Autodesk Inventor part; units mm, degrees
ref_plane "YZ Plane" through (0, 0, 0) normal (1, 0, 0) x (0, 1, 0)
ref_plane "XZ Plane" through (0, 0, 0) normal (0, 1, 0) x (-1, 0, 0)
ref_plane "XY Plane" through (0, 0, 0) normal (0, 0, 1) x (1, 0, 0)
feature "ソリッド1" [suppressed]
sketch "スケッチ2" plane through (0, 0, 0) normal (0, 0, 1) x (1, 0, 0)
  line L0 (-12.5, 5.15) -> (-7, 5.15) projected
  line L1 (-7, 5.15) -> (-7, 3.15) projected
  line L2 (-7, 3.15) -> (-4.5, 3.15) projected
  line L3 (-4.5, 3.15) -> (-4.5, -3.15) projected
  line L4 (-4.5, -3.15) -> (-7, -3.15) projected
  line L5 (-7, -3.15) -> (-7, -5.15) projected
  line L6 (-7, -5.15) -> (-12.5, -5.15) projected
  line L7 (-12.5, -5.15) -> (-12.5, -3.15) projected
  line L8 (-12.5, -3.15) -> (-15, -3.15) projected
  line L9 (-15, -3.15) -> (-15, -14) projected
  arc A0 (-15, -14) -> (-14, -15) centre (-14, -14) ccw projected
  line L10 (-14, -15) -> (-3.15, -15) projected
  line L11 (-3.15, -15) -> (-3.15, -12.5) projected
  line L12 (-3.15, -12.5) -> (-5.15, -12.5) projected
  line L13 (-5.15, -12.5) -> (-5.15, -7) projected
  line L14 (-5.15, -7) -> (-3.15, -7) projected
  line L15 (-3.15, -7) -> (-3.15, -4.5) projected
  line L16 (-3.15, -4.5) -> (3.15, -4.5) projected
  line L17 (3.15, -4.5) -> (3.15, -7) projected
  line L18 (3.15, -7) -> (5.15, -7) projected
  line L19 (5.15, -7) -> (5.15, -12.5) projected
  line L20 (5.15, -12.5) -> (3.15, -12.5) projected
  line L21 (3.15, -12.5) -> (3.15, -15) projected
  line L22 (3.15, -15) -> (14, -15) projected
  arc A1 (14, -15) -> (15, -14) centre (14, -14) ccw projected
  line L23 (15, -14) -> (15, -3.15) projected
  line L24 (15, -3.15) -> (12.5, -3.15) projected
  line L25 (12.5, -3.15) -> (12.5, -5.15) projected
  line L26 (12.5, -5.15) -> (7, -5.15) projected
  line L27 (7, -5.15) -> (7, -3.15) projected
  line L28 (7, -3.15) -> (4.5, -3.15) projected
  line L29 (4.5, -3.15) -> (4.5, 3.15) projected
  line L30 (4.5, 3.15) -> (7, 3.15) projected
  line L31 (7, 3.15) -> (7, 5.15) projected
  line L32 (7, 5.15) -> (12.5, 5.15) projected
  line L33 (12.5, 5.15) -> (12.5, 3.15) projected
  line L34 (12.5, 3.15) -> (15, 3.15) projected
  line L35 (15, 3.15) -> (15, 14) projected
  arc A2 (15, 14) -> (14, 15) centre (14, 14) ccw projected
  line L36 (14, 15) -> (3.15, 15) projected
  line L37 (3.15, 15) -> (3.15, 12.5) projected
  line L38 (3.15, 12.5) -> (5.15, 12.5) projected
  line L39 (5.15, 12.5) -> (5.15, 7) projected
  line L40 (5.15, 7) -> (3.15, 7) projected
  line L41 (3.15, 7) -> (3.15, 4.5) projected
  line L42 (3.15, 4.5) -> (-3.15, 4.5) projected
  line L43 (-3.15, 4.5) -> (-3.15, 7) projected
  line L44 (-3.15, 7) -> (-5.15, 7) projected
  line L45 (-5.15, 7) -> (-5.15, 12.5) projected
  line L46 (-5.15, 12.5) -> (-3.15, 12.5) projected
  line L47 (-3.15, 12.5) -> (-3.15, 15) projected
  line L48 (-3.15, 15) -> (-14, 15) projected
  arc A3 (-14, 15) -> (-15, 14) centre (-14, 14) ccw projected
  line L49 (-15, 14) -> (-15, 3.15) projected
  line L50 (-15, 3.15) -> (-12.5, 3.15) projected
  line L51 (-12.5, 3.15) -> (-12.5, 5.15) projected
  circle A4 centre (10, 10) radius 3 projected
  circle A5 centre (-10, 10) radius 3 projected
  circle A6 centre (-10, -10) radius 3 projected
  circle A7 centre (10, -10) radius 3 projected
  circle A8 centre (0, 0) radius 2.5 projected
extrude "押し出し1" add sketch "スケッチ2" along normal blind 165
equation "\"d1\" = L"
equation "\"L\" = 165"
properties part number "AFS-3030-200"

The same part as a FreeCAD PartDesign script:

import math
import FreeCAD as App
import Part
import Sketcher
from FreeCAD import Vector
Q = App.Units.Quantity

doc = App.newDocument("Part")
body = doc.addObject("PartDesign::Body", "Body")

sketch1 = body.newObject("Sketcher::SketchObject", "Sketch")
sketch1.AttachmentSupport = (doc.getObject("XY_Plane"), [""])
sketch1.MapMode = "FlatFace"
sketch1.addGeometry([
    Part.LineSegment(Vector(-12.5, 3.1, 0), Vector(-12.5, 5.2, 0)),
    Part.LineSegment(Vector(-12.5, 5.2, 0), Vector(-7, 5.2, 0)),
    Part.LineSegment(Vector(-7, 5.2, 0), Vector(-7, 3.1, 0)),
    Part.LineSegment(Vector(-7, 3.1, 0), Vector(-4.5, 3.1, 0)),
    Part.LineSegment(Vector(-4.5, 3.1, 0), Vector(-4.5, -3.1, 0)),
    Part.LineSegment(Vector(-4.5, -3.1, 0), Vector(-7, -3.1, 0)),
    Part.LineSegment(Vector(-7, -3.1, 0), Vector(-7, -5.2, 0)),
    Part.LineSegment(Vector(-7, -5.2, 0), Vector(-12.5, -5.2, 0)),
    Part.LineSegment(Vector(-12.5, -5.2, 0), Vector(-12.5, -3.1, 0)),
    Part.LineSegment(Vector(-12.5, -3.1, 0), Vector(-15, -3.1, 0)),
    Part.LineSegment(Vector(-15, -3.1, 0), Vector(-15, -14, 0)),
    Part.ArcOfCircle(Part.Circle(Vector(-14, -14, 0), Vector(0, 0, 1), 1), math.radians(180), math.radians(270)),
    Part.LineSegment(Vector(-14, -15, 0), Vector(-3.1, -15, 0)),
    Part.LineSegment(Vector(-3.1, -15, 0), Vector(-3.1, -12.5, 0)),
    Part.LineSegment(Vector(-3.1, -12.5, 0), Vector(-5.2, -12.5, 0)),
    Part.LineSegment(Vector(-5.2, -12.5, 0), Vector(-5.2, -7, 0)),
    Part.LineSegment(Vector(-5.2, -7, 0), Vector(-3.1, -7, 0)),
    Part.LineSegment(Vector(-3.1, -7, 0), Vector(-3.1, -4.5, 0)),
    Part.LineSegment(Vector(-3.1, -4.5, 0), Vector(3.1, -4.5, 0)),
    Part.LineSegment(Vector(3.1, -4.5, 0), Vector(3.1, -7, 0)),
    Part.LineSegment(Vector(3.1, -7, 0), Vector(5.2, -7, 0)),
    Part.LineSegment(Vector(5.2, -7, 0), Vector(5.2, -12.5, 0)),
    Part.LineSegment(Vector(5.2, -12.5, 0), Vector(3.1, -12.5, 0)),
    Part.LineSegment(Vector(3.1, -12.5, 0), Vector(3.1, -15, 0)),
    Part.LineSegment(Vector(3.1, -15, 0), Vector(14, -15, 0)),
    Part.ArcOfCircle(Part.Circle(Vector(14, -14, 0), Vector(0, 0, 1), 1), math.radians(-90), math.radians(0)),
    Part.LineSegment(Vector(15, -14, 0), Vector(15, -3.1, 0)),
    Part.LineSegment(Vector(15, -3.1, 0), Vector(12.5, -3.1, 0)),
    Part.LineSegment(Vector(12.5, -3.1, 0), Vector(12.5, -5.2, 0)),
    Part.LineSegment(Vector(12.5, -5.2, 0), Vector(7, -5.2, 0)),
    Part.LineSegment(Vector(7, -5.2, 0), Vector(7, -3.1, 0)),
    Part.LineSegment(Vector(7, -3.1, 0), Vector(4.5, -3.1, 0)),
    Part.LineSegment(Vector(4.5, -3.1, 0), Vector(4.5, 3.1, 0)),
    Part.LineSegment(Vector(4.5, 3.1, 0), Vector(7, 3.1, 0)),
    Part.LineSegment(Vector(7, 3.1, 0), Vector(7, 5.2, 0)),
    Part.LineSegment(Vector(7, 5.2, 0), Vector(12.5, 5.2, 0)),
    Part.LineSegment(Vector(12.5, 5.2, 0), Vector(12.5, 3.1, 0)),
    Part.LineSegment(Vector(12.5, 3.1, 0), Vector(15, 3.1, 0)),
    Part.LineSegment(Vector(15, 3.1, 0), Vector(15, 14, 0)),
    Part.ArcOfCircle(Part.Circle(Vector(14, 14, 0), Vector(0, 0, 1), 1), math.radians(0), math.radians(90)),
    Part.LineSegment(Vector(14, 15, 0), Vector(3.1, 15, 0)),
    Part.LineSegment(Vector(3.1, 15, 0), Vector(3.1, 12.5, 0)),
    Part.LineSegment(Vector(3.1, 12.5, 0), Vector(5.2, 12.5, 0)),
    Part.LineSegment(Vector(5.2, 12.5, 0), Vector(5.2, 7, 0)),
    Part.LineSegment(Vector(5.2, 7, 0), Vector(3.1, 7, 0)),
    Part.LineSegment(Vector(3.1, 7, 0), Vector(3.1, 4.5, 0)),
    Part.LineSegment(Vector(3.1, 4.5, 0), Vector(-3.1, 4.5, 0)),
    Part.LineSegment(Vector(-3.1, 4.5, 0), Vector(-3.1, 7, 0)),
    Part.LineSegment(Vector(-3.1, 7, 0), Vector(-5.2, 7, 0)),
    Part.LineSegment(Vector(-5.2, 7, 0), Vector(-5.2, 12.5, 0)),
    Part.LineSegment(Vector(-5.2, 12.5, 0), Vector(-3.1, 12.5, 0)),
    Part.LineSegment(Vector(-3.1, 12.5, 0), Vector(-3.1, 15, 0)),
    Part.LineSegment(Vector(-3.1, 15, 0), Vector(-14, 15, 0)),
    Part.ArcOfCircle(Part.Circle(Vector(-14, 14, 0), Vector(0, 0, 1), 1), math.radians(90), math.radians(180)),
    Part.LineSegment(Vector(-15, 14, 0), Vector(-15, 3.1, 0)),
    Part.LineSegment(Vector(-15, 3.1, 0), Vector(-12.5, 3.1, 0)),
    Part.Circle(Vector(-10, -10, 0), Vector(0, 0, 1), 3),
    Part.Circle(Vector(10, -10, 0), Vector(0, 0, 1), 3),
    Part.Circle(Vector(-10, 10, 0), Vector(0, 0, 1), 3),
    Part.Circle(Vector(0, 0, 0), Vector(0, 0, 1), 2.5),
    Part.Circle(Vector(10, 10, 0), Vector(0, 0, 1), 3),
], False)
sketch1.addConstraint([
    Sketcher.Constraint("Coincident", 0, 2, 1, 1),
    Sketcher.Constraint("Coincident", 1, 2, 2, 1),
    Sketcher.Constraint("Coincident", 2, 2, 3, 1),
    Sketcher.Constraint("Coincident", 3, 2, 4, 1),
    Sketcher.Constraint("Coincident", 4, 2, 5, 1),
    Sketcher.Constraint("Coincident", 5, 2, 6, 1),
    Sketcher.Constraint("Coincident", 6, 2, 7, 1),
    Sketcher.Constraint("Coincident", 7, 2, 8, 1),
    Sketcher.Constraint("Coincident", 8, 2, 9, 1),
    Sketcher.Constraint("Coincident", 9, 2, 10, 1),
    Sketcher.Constraint("Tangent", 10, 2, 11, 1),
    Sketcher.Constraint("Tangent", 11, 2, 12, 1),
    Sketcher.Constraint("Coincident", 12, 2, 13, 1),
    Sketcher.Constraint("Coincident", 13, 2, 14, 1),
    Sketcher.Constraint("Coincident", 14, 2, 15, 1),
    Sketcher.Constraint("Coincident", 15, 2, 16, 1),
    Sketcher.Constraint("Coincident", 16, 2, 17, 1),
    Sketcher.Constraint("Coincident", 17, 2, 18, 1),
    Sketcher.Constraint("Coincident", 18, 2, 19, 1),
    Sketcher.Constraint("Coincident", 19, 2, 20, 1),
    Sketcher.Constraint("Coincident", 20, 2, 21, 1),
    Sketcher.Constraint("Coincident", 21, 2, 22, 1),
    Sketcher.Constraint("Coincident", 22, 2, 23, 1),
    Sketcher.Constraint("Coincident", 23, 2, 24, 1),
    Sketcher.Constraint("Tangent", 24, 2, 25, 1),
    Sketcher.Constraint("Tangent", 25, 2, 26, 1),
    Sketcher.Constraint("Coincident", 26, 2, 27, 1),
    Sketcher.Constraint("Coincident", 27, 2, 28, 1),
    Sketcher.Constraint("Coincident", 28, 2, 29, 1),
    Sketcher.Constraint("Coincident", 29, 2, 30, 1),
    Sketcher.Constraint("Coincident", 30, 2, 31, 1),
    Sketcher.Constraint("Coincident", 31, 2, 32, 1),
    Sketcher.Constraint("Coincident", 32, 2, 33, 1),
    Sketcher.Constraint("Coincident", 33, 2, 34, 1),
    Sketcher.Constraint("Coincident", 34, 2, 35, 1),
    Sketcher.Constraint("Coincident", 35, 2, 36, 1),
    Sketcher.Constraint("Coincident", 36, 2, 37, 1),
    Sketcher.Constraint("Coincident", 37, 2, 38, 1),
    Sketcher.Constraint("Tangent", 38, 2, 39, 1),
    Sketcher.Constraint("Tangent", 39, 2, 40, 1),
    Sketcher.Constraint("Coincident", 40, 2, 41, 1),
    Sketcher.Constraint("Coincident", 41, 2, 42, 1),
    Sketcher.Constraint("Coincident", 42, 2, 43, 1),
    Sketcher.Constraint("Coincident", 43, 2, 44, 1),
    Sketcher.Constraint("Coincident", 44, 2, 45, 1),
    Sketcher.Constraint("Coincident", 45, 2, 46, 1),
    Sketcher.Constraint("Coincident", 46, 2, 47, 1),
    Sketcher.Constraint("Coincident", 47, 2, 48, 1),
    Sketcher.Constraint("Coincident", 48, 2, 49, 1),
    Sketcher.Constraint("Coincident", 49, 2, 50, 1),
    Sketcher.Constraint("Coincident", 50, 2, 51, 1),
    Sketcher.Constraint("Coincident", 51, 2, 52, 1),
    Sketcher.Constraint("Tangent", 52, 2, 53, 1),
    Sketcher.Constraint("Tangent", 53, 2, 54, 1),
    Sketcher.Constraint("Coincident", 54, 2, 55, 1),
    Sketcher.Constraint("Coincident", 55, 2, 0, 1),
    Sketcher.Constraint("Vertical", 0),
    Sketcher.Constraint("Horizontal", 1),
    Sketcher.Constraint("Vertical", 2),
    Sketcher.Constraint("Horizontal", 3),
    Sketcher.Constraint("Vertical", 4),
    Sketcher.Constraint("Horizontal", 5),
    Sketcher.Constraint("Vertical", 6),
    Sketcher.Constraint("Horizontal", 7),
    Sketcher.Constraint("Vertical", 8),
    Sketcher.Constraint("Horizontal", 9),
    Sketcher.Constraint("Vertical", 10),
    Sketcher.Constraint("Horizontal", 12),
    Sketcher.Constraint("Vertical", 13),
    Sketcher.Constraint("Horizontal", 14),
    Sketcher.Constraint("Vertical", 15),
    Sketcher.Constraint("Horizontal", 16),
    Sketcher.Constraint("Vertical", 17),
    Sketcher.Constraint("Horizontal", 18),
    Sketcher.Constraint("Vertical", 19),
    Sketcher.Constraint("Horizontal", 20),
    Sketcher.Constraint("Vertical", 21),
    Sketcher.Constraint("Horizontal", 22),
    Sketcher.Constraint("Vertical", 23),
    Sketcher.Constraint("Horizontal", 24),
    Sketcher.Constraint("Vertical", 26),
    Sketcher.Constraint("Horizontal", 27),
    Sketcher.Constraint("Vertical", 28),
    Sketcher.Constraint("Horizontal", 29),
    Sketcher.Constraint("Vertical", 30),
    Sketcher.Constraint("Horizontal", 31),
    Sketcher.Constraint("Vertical", 32),
    Sketcher.Constraint("Horizontal", 33),
    Sketcher.Constraint("Vertical", 34),
    Sketcher.Constraint("Horizontal", 35),
    Sketcher.Constraint("Vertical", 36),
    Sketcher.Constraint("Horizontal", 37),
    Sketcher.Constraint("Vertical", 38),
    Sketcher.Constraint("Horizontal", 40),
    Sketcher.Constraint("Vertical", 41),
    Sketcher.Constraint("Horizontal", 42),
    Sketcher.Constraint("Vertical", 43),
    Sketcher.Constraint("Horizontal", 44),
    Sketcher.Constraint("Vertical", 45),
    Sketcher.Constraint("Horizontal", 46),
    Sketcher.Constraint("Vertical", 47),
    Sketcher.Constraint("Horizontal", 48),
    Sketcher.Constraint("Vertical", 49),
    Sketcher.Constraint("Horizontal", 50),
    Sketcher.Constraint("Vertical", 51),
    Sketcher.Constraint("Horizontal", 52),
    Sketcher.Constraint("Vertical", 54),
    Sketcher.Constraint("Horizontal", 55),
    Sketcher.Constraint("Coincident", 59, 3, -1, 1),
    Sketcher.Constraint("Equal", 11, 25),
    Sketcher.Constraint("Equal", 25, 39),
    Sketcher.Constraint("Equal", 39, 53),
    Sketcher.Constraint("Equal", 56, 57),
    Sketcher.Constraint("Equal", 57, 58),
    Sketcher.Constraint("Equal", 58, 60),
    Sketcher.Constraint("Symmetric", 11, 3, 39, 3, -1, 1),
    Sketcher.Constraint("Symmetric", 25, 3, 53, 3, -1, 1),
    Sketcher.Constraint("Symmetric", 57, 3, 58, 3, -1, 1),
    Sketcher.Constraint("Symmetric", 56, 3, 60, 3, -1, 1),
    Sketcher.Constraint("Symmetric", 0, 2, 28, 2, -1, 1),
    Sketcher.Constraint("Symmetric", 2, 2, 30, 2, -1, 1),
    Sketcher.Constraint("Symmetric", 4, 2, 32, 2, -1, 1),
    Sketcher.Constraint("Symmetric", 6, 2, 34, 2, -1, 1),
    Sketcher.Constraint("Symmetric", 8, 2, 36, 2, -1, 1),
    Sketcher.Constraint("Symmetric", 13, 2, 41, 2, -1, 1),
    Sketcher.Constraint("Symmetric", 15, 2, 43, 2, -1, 1),
    Sketcher.Constraint("Symmetric", 17, 2, 45, 2, -1, 1),
    Sketcher.Constraint("Symmetric", 19, 2, 47, 2, -1, 1),
    Sketcher.Constraint("Symmetric", 21, 2, 49, 2, -1, 1),
    Sketcher.Constraint("Symmetric", 11, 3, 25, 3, -2),
    Sketcher.Constraint("Symmetric", 56, 3, 57, 3, -2),
    Sketcher.Constraint("Symmetric", 16, 2, 19, 2, -2),
    Sketcher.Constraint("Symmetric", 14, 2, 21, 2, -2),
    Sketcher.Constraint("Symmetric", 8, 2, 27, 2, -2),
    Sketcher.Constraint("Symmetric", 6, 2, 29, 2, -2),
    Sketcher.Constraint("Horizontal", 5, 2, 8, 2),
    Sketcher.Constraint("Horizontal", 27, 2, 30, 2),
    Sketcher.Constraint("Horizontal", 37, 2, 54, 2),
    Sketcher.Constraint("Vertical", 13, 2, 16, 2),
    Sketcher.Constraint("Vertical", 19, 2, 22, 2),
    Sketcher.Constraint("Vertical", 47, 2, 50, 2),
    Sketcher.Constraint("Equal", 5, 9),
    Sketcher.Constraint("Equal", 50, 0),
    Sketcher.Constraint("Equal", 46, 4),
    Sketcher.Constraint("Equal", 52, 10),
    Sketcher.Constraint("Equal", 55, 13),
    Sketcher.Constraint("Equal", 35, 15),
    Sketcher.Constraint("Equal", 13, 17),
    Sketcher.Constraint("Diameter", 56, Q("6 mm")),
    Sketcher.Constraint("Diameter", 59, Q("5 mm")),
    Sketcher.Constraint("Radius", 11, Q("1 mm")),
    Sketcher.Constraint("DistanceX", 14, 2, 14, 1, Q("2 mm")),
    Sketcher.Constraint("DistanceX", 1, 1, 1, 2, Q("5.5 mm")),
    Sketcher.Constraint("DistanceX", 3, 1, 3, 2, Q("2.5 mm")),
    Sketcher.Constraint("DistanceX", 18, 1, 18, 2, Q("6.3 mm")),
    Sketcher.Constraint("DistanceX", 11, 3, -1, 1, Q("14 mm")),
    Sketcher.Constraint("DistanceX", 56, 3, -1, 1, Q("10 mm")),
    Sketcher.Constraint("DistanceY", 56, 3, -1, 1, Q("10 mm")),
])
pad1 = body.newObject("PartDesign::Pad", "Pad")
pad1.Profile = sketch1
pad1.Length = 165

doc.recompute()
